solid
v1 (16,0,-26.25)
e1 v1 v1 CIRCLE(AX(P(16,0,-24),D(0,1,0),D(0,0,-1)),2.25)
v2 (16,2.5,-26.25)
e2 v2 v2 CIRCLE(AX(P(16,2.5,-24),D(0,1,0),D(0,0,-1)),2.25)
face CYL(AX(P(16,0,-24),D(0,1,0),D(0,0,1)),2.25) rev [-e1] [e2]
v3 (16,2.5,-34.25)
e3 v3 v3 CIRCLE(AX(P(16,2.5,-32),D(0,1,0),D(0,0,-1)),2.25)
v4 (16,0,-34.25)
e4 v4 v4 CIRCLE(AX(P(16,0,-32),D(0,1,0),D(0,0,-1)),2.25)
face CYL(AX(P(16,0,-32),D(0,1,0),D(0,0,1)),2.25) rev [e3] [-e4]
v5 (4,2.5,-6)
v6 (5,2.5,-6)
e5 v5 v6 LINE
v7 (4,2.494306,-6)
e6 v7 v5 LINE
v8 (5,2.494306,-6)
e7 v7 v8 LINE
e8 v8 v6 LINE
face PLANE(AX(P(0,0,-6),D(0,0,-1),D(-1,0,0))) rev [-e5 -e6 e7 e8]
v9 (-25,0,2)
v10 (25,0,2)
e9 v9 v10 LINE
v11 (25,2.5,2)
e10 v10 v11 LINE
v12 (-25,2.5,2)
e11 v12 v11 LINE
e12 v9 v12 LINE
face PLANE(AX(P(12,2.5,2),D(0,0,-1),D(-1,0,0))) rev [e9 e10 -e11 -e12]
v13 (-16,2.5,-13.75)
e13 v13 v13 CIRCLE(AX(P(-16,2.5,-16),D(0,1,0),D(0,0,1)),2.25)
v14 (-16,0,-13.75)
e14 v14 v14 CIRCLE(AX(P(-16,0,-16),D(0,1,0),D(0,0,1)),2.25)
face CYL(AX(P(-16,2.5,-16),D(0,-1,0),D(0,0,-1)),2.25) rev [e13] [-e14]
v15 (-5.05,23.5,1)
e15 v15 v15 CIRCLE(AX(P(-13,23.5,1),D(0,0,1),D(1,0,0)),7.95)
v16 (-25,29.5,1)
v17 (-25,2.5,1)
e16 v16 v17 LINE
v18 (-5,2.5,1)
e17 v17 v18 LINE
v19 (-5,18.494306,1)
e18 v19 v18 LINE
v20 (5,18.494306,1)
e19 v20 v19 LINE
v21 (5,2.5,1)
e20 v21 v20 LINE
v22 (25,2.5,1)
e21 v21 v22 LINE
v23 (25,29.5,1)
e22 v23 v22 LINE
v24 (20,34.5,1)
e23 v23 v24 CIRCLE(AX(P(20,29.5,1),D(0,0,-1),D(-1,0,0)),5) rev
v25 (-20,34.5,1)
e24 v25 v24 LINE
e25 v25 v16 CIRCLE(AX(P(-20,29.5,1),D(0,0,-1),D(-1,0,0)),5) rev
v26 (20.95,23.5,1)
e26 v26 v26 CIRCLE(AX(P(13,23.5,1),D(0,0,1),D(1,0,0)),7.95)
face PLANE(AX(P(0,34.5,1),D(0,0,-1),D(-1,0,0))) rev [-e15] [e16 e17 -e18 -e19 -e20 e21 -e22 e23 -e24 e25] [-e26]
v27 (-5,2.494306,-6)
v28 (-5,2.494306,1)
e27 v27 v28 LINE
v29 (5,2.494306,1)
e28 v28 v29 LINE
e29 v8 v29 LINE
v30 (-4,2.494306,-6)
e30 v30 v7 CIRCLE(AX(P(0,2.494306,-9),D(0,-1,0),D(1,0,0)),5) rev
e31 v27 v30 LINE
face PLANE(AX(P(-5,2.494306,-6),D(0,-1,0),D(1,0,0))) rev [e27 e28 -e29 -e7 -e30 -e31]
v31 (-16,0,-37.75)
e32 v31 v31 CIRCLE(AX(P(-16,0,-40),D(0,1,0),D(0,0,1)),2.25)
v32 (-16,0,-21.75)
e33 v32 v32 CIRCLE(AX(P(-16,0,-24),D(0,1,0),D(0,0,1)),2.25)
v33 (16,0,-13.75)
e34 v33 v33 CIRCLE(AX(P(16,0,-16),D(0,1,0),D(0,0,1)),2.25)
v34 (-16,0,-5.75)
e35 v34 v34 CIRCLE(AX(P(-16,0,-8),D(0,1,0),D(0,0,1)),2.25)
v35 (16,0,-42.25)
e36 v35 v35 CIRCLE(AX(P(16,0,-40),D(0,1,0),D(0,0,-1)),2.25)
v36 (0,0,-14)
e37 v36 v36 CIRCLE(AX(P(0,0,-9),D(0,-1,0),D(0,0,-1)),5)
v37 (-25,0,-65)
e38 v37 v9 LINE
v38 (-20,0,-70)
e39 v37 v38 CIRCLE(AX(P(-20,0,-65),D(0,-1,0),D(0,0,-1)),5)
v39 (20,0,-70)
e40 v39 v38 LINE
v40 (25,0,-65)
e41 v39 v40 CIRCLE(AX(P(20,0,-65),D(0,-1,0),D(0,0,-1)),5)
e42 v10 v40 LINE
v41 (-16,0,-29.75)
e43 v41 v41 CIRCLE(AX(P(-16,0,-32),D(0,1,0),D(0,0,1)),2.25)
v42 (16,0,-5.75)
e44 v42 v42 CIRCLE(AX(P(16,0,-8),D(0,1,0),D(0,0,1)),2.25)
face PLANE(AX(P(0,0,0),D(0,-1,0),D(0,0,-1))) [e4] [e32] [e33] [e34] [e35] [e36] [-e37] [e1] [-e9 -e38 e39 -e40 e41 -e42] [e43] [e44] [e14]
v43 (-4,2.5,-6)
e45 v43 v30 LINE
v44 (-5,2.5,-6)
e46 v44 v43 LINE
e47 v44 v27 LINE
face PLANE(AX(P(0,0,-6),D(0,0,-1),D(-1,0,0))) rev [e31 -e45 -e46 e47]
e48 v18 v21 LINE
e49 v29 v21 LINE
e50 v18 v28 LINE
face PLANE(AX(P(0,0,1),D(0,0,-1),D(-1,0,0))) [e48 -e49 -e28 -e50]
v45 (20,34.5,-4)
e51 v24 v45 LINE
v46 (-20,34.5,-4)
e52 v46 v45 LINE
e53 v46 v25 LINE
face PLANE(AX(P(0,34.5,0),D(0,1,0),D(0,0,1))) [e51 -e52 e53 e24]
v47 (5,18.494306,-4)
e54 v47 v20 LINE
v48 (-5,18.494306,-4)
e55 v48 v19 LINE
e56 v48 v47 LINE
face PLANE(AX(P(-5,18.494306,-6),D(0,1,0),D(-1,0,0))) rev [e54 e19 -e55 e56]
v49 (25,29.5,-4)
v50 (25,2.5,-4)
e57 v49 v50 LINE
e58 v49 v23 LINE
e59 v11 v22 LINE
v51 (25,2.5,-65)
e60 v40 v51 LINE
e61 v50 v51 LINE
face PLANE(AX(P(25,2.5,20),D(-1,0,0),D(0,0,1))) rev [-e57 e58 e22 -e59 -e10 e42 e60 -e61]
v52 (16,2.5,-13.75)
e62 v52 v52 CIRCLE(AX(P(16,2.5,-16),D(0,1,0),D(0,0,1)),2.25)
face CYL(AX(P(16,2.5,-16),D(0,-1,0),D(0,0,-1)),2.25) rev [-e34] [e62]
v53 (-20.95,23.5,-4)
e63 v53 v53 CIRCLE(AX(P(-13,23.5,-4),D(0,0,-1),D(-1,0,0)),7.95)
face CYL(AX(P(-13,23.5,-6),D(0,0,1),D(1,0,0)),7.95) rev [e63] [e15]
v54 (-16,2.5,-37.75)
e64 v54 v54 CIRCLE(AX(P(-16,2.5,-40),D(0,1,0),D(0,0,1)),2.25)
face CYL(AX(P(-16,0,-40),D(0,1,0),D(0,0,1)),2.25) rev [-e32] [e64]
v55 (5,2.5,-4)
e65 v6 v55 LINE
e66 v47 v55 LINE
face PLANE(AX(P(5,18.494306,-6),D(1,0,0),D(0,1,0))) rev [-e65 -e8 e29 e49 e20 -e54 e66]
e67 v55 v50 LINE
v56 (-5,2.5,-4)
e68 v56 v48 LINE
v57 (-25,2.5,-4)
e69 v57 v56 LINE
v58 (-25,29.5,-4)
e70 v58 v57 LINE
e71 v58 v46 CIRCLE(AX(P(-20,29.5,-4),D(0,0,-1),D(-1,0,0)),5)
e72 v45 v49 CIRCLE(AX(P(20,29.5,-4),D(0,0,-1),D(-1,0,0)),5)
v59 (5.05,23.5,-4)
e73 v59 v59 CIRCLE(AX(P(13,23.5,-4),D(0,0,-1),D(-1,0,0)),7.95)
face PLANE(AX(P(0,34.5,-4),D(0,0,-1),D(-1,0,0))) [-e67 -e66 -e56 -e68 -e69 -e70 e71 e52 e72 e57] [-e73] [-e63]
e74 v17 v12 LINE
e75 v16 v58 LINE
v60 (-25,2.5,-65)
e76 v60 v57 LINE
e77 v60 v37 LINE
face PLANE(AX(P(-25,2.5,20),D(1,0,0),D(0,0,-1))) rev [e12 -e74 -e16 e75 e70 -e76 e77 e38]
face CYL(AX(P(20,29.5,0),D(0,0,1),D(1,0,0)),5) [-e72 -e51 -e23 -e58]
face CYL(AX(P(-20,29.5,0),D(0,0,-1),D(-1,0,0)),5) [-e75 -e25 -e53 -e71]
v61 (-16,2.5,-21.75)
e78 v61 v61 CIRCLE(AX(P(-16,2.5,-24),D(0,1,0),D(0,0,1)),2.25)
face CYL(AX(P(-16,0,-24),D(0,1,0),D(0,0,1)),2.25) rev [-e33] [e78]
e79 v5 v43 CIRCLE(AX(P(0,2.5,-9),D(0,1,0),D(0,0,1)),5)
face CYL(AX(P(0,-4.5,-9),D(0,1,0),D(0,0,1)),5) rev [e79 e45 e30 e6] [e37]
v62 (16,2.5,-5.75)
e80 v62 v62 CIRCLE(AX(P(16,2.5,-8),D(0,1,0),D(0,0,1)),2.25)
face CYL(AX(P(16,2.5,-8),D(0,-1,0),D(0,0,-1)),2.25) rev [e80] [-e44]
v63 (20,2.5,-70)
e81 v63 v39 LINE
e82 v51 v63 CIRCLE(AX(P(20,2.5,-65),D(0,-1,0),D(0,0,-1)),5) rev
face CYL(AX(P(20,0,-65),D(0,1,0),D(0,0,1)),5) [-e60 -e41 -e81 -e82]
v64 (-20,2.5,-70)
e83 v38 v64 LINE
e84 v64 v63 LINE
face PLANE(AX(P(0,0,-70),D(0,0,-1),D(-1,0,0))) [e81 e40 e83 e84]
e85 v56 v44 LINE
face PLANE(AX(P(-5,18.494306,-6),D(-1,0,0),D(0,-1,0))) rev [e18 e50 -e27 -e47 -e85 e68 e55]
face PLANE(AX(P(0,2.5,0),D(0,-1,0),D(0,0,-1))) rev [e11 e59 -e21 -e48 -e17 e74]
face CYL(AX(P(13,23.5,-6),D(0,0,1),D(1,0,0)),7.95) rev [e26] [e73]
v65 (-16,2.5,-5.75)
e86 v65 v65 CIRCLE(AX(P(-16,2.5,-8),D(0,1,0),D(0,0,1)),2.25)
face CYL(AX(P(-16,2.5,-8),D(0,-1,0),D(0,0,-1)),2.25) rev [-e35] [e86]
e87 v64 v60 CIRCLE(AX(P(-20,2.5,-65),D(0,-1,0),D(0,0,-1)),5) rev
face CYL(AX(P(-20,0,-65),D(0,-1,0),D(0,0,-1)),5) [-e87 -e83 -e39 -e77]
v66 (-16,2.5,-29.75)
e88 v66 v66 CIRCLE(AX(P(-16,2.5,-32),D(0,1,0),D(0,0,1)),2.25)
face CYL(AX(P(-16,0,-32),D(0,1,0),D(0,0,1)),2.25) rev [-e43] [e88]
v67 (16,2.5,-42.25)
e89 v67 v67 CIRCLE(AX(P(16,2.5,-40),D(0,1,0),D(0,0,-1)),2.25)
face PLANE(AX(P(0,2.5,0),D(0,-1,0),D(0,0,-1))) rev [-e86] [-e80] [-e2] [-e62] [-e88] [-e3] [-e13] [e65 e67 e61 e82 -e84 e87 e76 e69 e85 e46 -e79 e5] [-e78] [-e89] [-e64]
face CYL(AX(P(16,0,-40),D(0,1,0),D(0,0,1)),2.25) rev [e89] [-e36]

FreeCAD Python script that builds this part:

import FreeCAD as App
import Part
import Sketcher
from FreeCAD import Vector


def edges_at(feature, points):
    """Names of the edges that pass closest to the given points."""
    edges = feature.Shape.Edges
    near = lambda p: min(range(len(edges)), key=lambda i: edges[i].distToShape(Part.Vertex(*p))[0])
    return sorted({f"Edge{near(p) + 1}" for p in points})

doc = App.newDocument("Part")
body = doc.addObject("PartDesign::Body", "Body")

# Sketch on XZ plane
sketch1 = body.newObject("Sketcher::SketchObject", "Sketch")
sketch1.AttachmentSupport = (doc.getObject("XZ_Plane"), [""])
sketch1.MapMode = "FlatFace"
sketch1.addGeometry([
    Part.LineSegment(Vector(-12, 20, 0), Vector(12, 20, 0)),  # 0
    Part.LineSegment(Vector(12, 20, 0), Vector(12, 2, 0)),  # 1
    Part.LineSegment(Vector(12, 2, 0), Vector(16, 2, 0)),  # 2
    Part.LineSegment(Vector(16, 2, 0), Vector(16, 20, 0)),  # 3
    Part.LineSegment(Vector(16, 20, 0), Vector(25, 20, 0)),  # 4
    Part.LineSegment(Vector(25, 20, 0), Vector(25, -20, 0)),  # 5
    Part.LineSegment(Vector(25, -20, 0), Vector(-25, -20, 0)),  # 6
    Part.LineSegment(Vector(-25, -20, 0), Vector(-25, 20, 0)),  # 7
    Part.LineSegment(Vector(-25, 20, 0), Vector(-16, 20, 0)),  # 8
    Part.LineSegment(Vector(-16, 20, 0), Vector(-16, 2, 0)),  # 9
    Part.LineSegment(Vector(-16, 2, 0), Vector(-12, 2, 0)),  # 10
    Part.LineSegment(Vector(-12, 2, 0), Vector(-12, 20, 0)),  # 11
    Part.Circle(Vector(-16, -8, 0), Vector(0, 0, 1), 2.2),  # 12
    Part.Circle(Vector(16, -8, 0), Vector(0, 0, 1), 2.2),  # 13
    Part.Circle(Vector(-16, -16, 0), Vector(0, 0, 1), 2.2),  # 14
    Part.Circle(Vector(16, -16, 0), Vector(0, 0, 1), 2.2),  # 15
], False)
sketch1.addConstraint([
    Sketcher.Constraint("Coincident", 0, 2, 1, 1),
    Sketcher.Constraint("Coincident", 1, 2, 2, 1),
    Sketcher.Constraint("Coincident", 2, 2, 3, 1),
    Sketcher.Constraint("Coincident", 3, 2, 4, 1),
    Sketcher.Constraint("Coincident", 4, 2, 5, 1),
    Sketcher.Constraint("Coincident", 5, 2, 6, 1),
    Sketcher.Constraint("Coincident", 6, 2, 7, 1),
    Sketcher.Constraint("Coincident", 7, 2, 8, 1),
    Sketcher.Constraint("Coincident", 8, 2, 9, 1),
    Sketcher.Constraint("Coincident", 9, 2, 10, 1),
    Sketcher.Constraint("Coincident", 10, 2, 11, 1),
    Sketcher.Constraint("Coincident", 11, 2, 0, 1),
    Sketcher.Constraint("Horizontal", 0),
    Sketcher.Constraint("Vertical", 1),
    Sketcher.Constraint("Horizontal", 2),
    Sketcher.Constraint("Vertical", 3),
    Sketcher.Constraint("Horizontal", 4),
    Sketcher.Constraint("Vertical", 5),
    Sketcher.Constraint("Horizontal", 6),
    Sketcher.Constraint("Vertical", 7),
    Sketcher.Constraint("Horizontal", 8),
    Sketcher.Constraint("Vertical", 9),
    Sketcher.Constraint("Horizontal", 10),
    Sketcher.Constraint("Vertical", 11),
    Sketcher.Constraint("Equal", 12, 13),
    Sketcher.Constraint("Equal", 13, 14),
    Sketcher.Constraint("Equal", 14, 15),
    Sketcher.Constraint("Symmetric", 4, 2, 6, 2, -1, 1),
    Sketcher.Constraint("Symmetric", 12, 3, 13, 3, -2),
    Sketcher.Constraint("Symmetric", 14, 3, 15, 3, -2),
    Sketcher.Constraint("Symmetric", 3, 2, 8, 2, -2),
    Sketcher.Constraint("Symmetric", 1, 2, 10, 2, -2),
    Sketcher.Constraint("Horizontal", 0, 2, 3, 2),
    Sketcher.Constraint("Vertical", 12, 3, 14, 3),
    Sketcher.Constraint("Vertical", 15, 3, 2, 2),
    Sketcher.Constraint("Diameter", 12, 4.5),
    Sketcher.Constraint("DistanceX", 0, 1, 0, 2, 24.0),
    Sketcher.Constraint("DistanceX", 2, 1, 2, 2, 4.0),
    Sketcher.Constraint("DistanceX", 4, 1, 4, 2, 9.0),
    Sketcher.Constraint("DistanceY", 1, 2, 1, 1, 18.0),
    Sketcher.Constraint("DistanceY", 5, 2, 5, 1, 40.0),
    Sketcher.Constraint("DistanceY", 12, 3, -1, 1, 8.0),
    Sketcher.Constraint("DistanceY", 14, 3, -1, 1, 16.0),
])
pad1 = body.newObject("PartDesign::Pad", "Pad")
pad1.Profile = sketch1
pad1.Length = 2.5
pad1.Reversed = True

# Sketch on XZ plane
sketch2 = body.newObject("Sketcher::SketchObject", "Sketch001")
sketch2.AttachmentSupport = (doc.getObject("XZ_Plane"), [""])
sketch2.MapMode = "FlatFace"
sketch2.AttachmentOffset = App.Placement(Vector(0, 0, -2.5), App.Rotation())
sketch2.addGeometry([
    Part.LineSegment(Vector(-25, -4, 0), Vector(-25, 1, 0)),
    Part.LineSegment(Vector(-25, 1, 0), Vector(25, 1, 0)),
    Part.LineSegment(Vector(25, 1, 0), Vector(25, -4, 0)),
    Part.LineSegment(Vector(25, -4, 0), Vector(-25, -4, 0)),
], False)
sketch2.addConstraint([
    Sketcher.Constraint("Coincident", 0, 2, 1, 1),
    Sketcher.Constraint("Coincident", 1, 2, 2, 1),
    Sketcher.Constraint("Coincident", 2, 2, 3, 1),
    Sketcher.Constraint("Coincident", 3, 2, 0, 1),
    Sketcher.Constraint("Vertical", 0),
    Sketcher.Constraint("Horizontal", 1),
    Sketcher.Constraint("Vertical", 2),
    Sketcher.Constraint("Horizontal", 3),
    Sketcher.Constraint("DistanceX", 1, 1, 1, 2, 50.0),
    Sketcher.Constraint("DistanceY", 0, 1, 0, 2, 5.0),
    Sketcher.Constraint("DistanceX", 0, 2, -1, 1, 25.0),
    Sketcher.Constraint("DistanceY", -1, 1, 0, 2, 1.0),
])
pad2 = body.newObject("PartDesign::Pad", "Pad001")
pad2.Profile = sketch2
pad2.Length = 32
pad2.Reversed = True

# Sketch on XZ plane
sketch3 = body.newObject("Sketcher::SketchObject", "Sketch002")
sketch3.AttachmentSupport = (doc.getObject("XZ_Plane"), [""])
sketch3.MapMode = "FlatFace"
sketch3.AttachmentOffset = App.Placement(Vector(0, 0, -2.5), App.Rotation())
sketch3.addGeometry(Part.Circle(Vector(0, -9, 0), Vector(0, 0, 1), 5), False)
sketch3.addConstraint([
    Sketcher.Constraint("PointOnObject", 0, 3, -2),
    Sketcher.Constraint("Diameter", 0, 10.0),
    Sketcher.Constraint("DistanceY", 0, 3, -1, 1, 9.0),
])
pocket1 = body.newObject("PartDesign::Pocket", "Pocket")
pocket1.Profile = sketch3
pocket1.Length = 7
pocket1.Reversed = True

# Sketch on XY plane
sketch4 = body.newObject("Sketcher::SketchObject", "Sketch003")
sketch4.AttachmentSupport = (doc.getObject("XY_Plane"), [""])
sketch4.MapMode = "FlatFace"
sketch4.AttachmentOffset = App.Placement(Vector(0, 0, 1), App.Rotation())
sketch4.addGeometry([
    Part.Circle(Vector(-13, 24, 0), Vector(0, 0, 1), 8),  # 0
    Part.Circle(Vector(13, 24, 0), Vector(0, 0, 1), 8),  # 1
    Part.LineSegment(Vector(-5, 18, 0), Vector(-5, 2, 0)),  # 2
    Part.LineSegment(Vector(-5, 2, 0), Vector(5, 2, 0)),  # 3
    Part.LineSegment(Vector(5, 2, 0), Vector(5, 18, 0)),  # 4
    Part.LineSegment(Vector(5, 18, 0), Vector(-5, 18, 0)),  # 5
], False)
sketch4.addConstraint([
    Sketcher.Constraint("Coincident", 2, 2, 3, 1),
    Sketcher.Constraint("Coincident", 3, 2, 4, 1),
    Sketcher.Constraint("Coincident", 4, 2, 5, 1),
    Sketcher.Constraint("Coincident", 5, 2, 2, 1),
    Sketcher.Constraint("Vertical", 2),
    Sketcher.Constraint("Horizontal", 3),
    Sketcher.Constraint("Vertical", 4),
    Sketcher.Constraint("Horizontal", 5),
    Sketcher.Constraint("Equal", 0, 1),
    Sketcher.Constraint("Symmetric", 0, 3, 1, 3, -2),
    Sketcher.Constraint("Diameter", 0, 15.9),
    Sketcher.Constraint("DistanceX", 3, 1, 3, 2, 10.0),
    Sketcher.Constraint("DistanceY", 2, 2, 2, 1, 16.0),
    Sketcher.Constraint("DistanceX", 0, 3, -1, 1, 13.0),
    Sketcher.Constraint("DistanceX", 2, 2, -1, 1, 5.0),
    Sketcher.Constraint("DistanceY", -1, 1, 0, 3, 23.5),
    Sketcher.Constraint("DistanceY", -1, 1, 2, 2, 2.494306),
])
pocket2 = body.newObject("PartDesign::Pocket", "Pocket001")
pocket2.Profile = sketch4
pocket2.Length = 7

# Sketch on XZ plane
sketch5 = body.newObject("Sketcher::SketchObject", "Sketch004")
sketch5.AttachmentSupport = (doc.getObject("XZ_Plane"), [""])
sketch5.MapMode = "FlatFace"
sketch5.AttachmentOffset = App.Placement(Vector(0, 0, -2.5), App.Rotation())
sketch5.addGeometry([
    Part.LineSegment(Vector(-25, 2, 0), Vector(-25, 20, 0)),
    Part.LineSegment(Vector(-25, 20, 0), Vector(25, 20, 0)),
    Part.LineSegment(Vector(25, 20, 0), Vector(25, 2, 0)),
    Part.LineSegment(Vector(25, 2, 0), Vector(-25, 2, 0)),
], False)
sketch5.addConstraint([
    Sketcher.Constraint("Coincident", 0, 2, 1, 1),
    Sketcher.Constraint("Coincident", 1, 2, 2, 1),
    Sketcher.Constraint("Coincident", 2, 2, 3, 1),
    Sketcher.Constraint("Coincident", 3, 2, 0, 1),
    Sketcher.Constraint("Vertical", 0),
    Sketcher.Constraint("Horizontal", 1),
    Sketcher.Constraint("Vertical", 2),
    Sketcher.Constraint("Horizontal", 3),
    Sketcher.Constraint("DistanceX", 1, 1, 1, 2, 50.0),
    Sketcher.Constraint("DistanceY", 0, 1, 0, 2, 18.0),
    Sketcher.Constraint("DistanceX", 0, 2, -1, 1, 25.0),
    Sketcher.Constraint("DistanceY", -1, 1, 0, 2, 20.0),
])
pocket3 = body.newObject("PartDesign::Pocket", "Pocket002")
pocket3.Profile = sketch5
pocket3.Type = "ThroughAll"
pocket3.Reversed = True

# Sketch on XY plane
sketch6 = body.newObject("Sketcher::SketchObject", "Sketch005")
sketch6.AttachmentSupport = (doc.getObject("XY_Plane"), [""])
sketch6.MapMode = "FlatFace"
sketch6.AttachmentOffset = App.Placement(Vector(0, 0, -20), App.Rotation())
sketch6.addGeometry([
    Part.LineSegment(Vector(25, 2.5, 0), Vector(25, 0, 0)),
    Part.LineSegment(Vector(25, 0, 0), Vector(-25, 0, 0)),
    Part.LineSegment(Vector(-25, 0, 0), Vector(-25, 2.5, 0)),
    Part.LineSegment(Vector(-25, 2.5, 0), Vector(25, 2.5, 0)),
], False)
sketch6.addConstraint([
    Sketcher.Constraint("Coincident", 0, 2, 1, 1),
    Sketcher.Constraint("Coincident", 1, 2, 2, 1),
    Sketcher.Constraint("Coincident", 2, 2, 3, 1),
    Sketcher.Constraint("Coincident", 3, 2, 0, 1),
    Sketcher.Constraint("Vertical", 0),
    Sketcher.Constraint("Horizontal", 1),
    Sketcher.Constraint("Vertical", 2),
    Sketcher.Constraint("Horizontal", 3),
    Sketcher.Constraint("Symmetric", 0, 2, 1, 2, -1, 1),
    Sketcher.Constraint("DistanceX", 1, 2, 1, 1, 50.0),
    Sketcher.Constraint("DistanceY", 0, 2, 0, 1, 2.5),
])
pad3 = body.newObject("PartDesign::Pad", "Pad002")
pad3.Profile = sketch6
pad3.Length = 50
pad3.Reversed = True

# Sketch on XZ plane
sketch7 = body.newObject("Sketcher::SketchObject", "Sketch006")
sketch7.AttachmentSupport = (doc.getObject("XZ_Plane"), [""])
sketch7.MapMode = "FlatFace"
sketch7.AttachmentOffset = App.Placement(Vector(0, 0, -2.5), App.Rotation())
sketch7.addGeometry([
    Part.Circle(Vector(-16, -16, 0), Vector(0, 0, 1), 2.2),  # 0
    Part.Circle(Vector(-16, -24, 0), Vector(0, 0, 1), 2.2),  # 1
    Part.Circle(Vector(-16, -32, 0), Vector(0, 0, 1), 2.2),  # 2
    Part.Circle(Vector(-16, -40, 0), Vector(0, 0, 1), 2.2),  # 3
    Part.Circle(Vector(16, -40, 0), Vector(0, 0, 1), 2.2),  # 4
    Part.Circle(Vector(16, -32, 0), Vector(0, 0, 1), 2.2),  # 5
    Part.Circle(Vector(16, -24, 0), Vector(0, 0, 1), 2.2),  # 6
], False)
sketch7.addConstraint([
    Sketcher.Constraint("Equal", 0, 1),
    Sketcher.Constraint("Equal", 1, 2),
    Sketcher.Constraint("Equal", 2, 3),
    Sketcher.Constraint("Equal", 3, 4),
    Sketcher.Constraint("Equal", 4, 5),
    Sketcher.Constraint("Equal", 5, 6),
    Sketcher.Constraint("Symmetric", 3, 3, 4, 3, -2),
    Sketcher.Constraint("Symmetric", 2, 3, 5, 3, -2),
    Sketcher.Constraint("Symmetric", 1, 3, 6, 3, -2),
    Sketcher.Constraint("Vertical", 0, 3, 1, 3),
    Sketcher.Constraint("Vertical", 1, 3, 2, 3),
    Sketcher.Constraint("Vertical", 2, 3, 3, 3),
    Sketcher.Constraint("Diameter", 0, 4.5),
    Sketcher.Constraint("DistanceX", 0, 3, -1, 1, 16.0),
    Sketcher.Constraint("DistanceY", 0, 3, -1, 1, 16.0),
    Sketcher.Constraint("DistanceY", 1, 3, -1, 1, 24.0),
    Sketcher.Constraint("DistanceY", 2, 3, -1, 1, 32.0),
    Sketcher.Constraint("DistanceY", 3, 3, -1, 1, 40.0),
])
pocket4 = body.newObject("PartDesign::Pocket", "Pocket003")
pocket4.Profile = sketch7
pocket4.Type = "ThroughAll"
pocket4.Reversed = True
doc.recompute()

fillet = body.newObject("PartDesign::Fillet", "Fillet")
fillet.Base = (pocket4, edges_at(pocket4, [
    (25, 1.25, -70),
    (-25, 1.25, -70),
    (-25, 34.5, -1.5),
    (25, 34.5, -1.5),
]))
fillet.Radius = 5

doc.recompute()
